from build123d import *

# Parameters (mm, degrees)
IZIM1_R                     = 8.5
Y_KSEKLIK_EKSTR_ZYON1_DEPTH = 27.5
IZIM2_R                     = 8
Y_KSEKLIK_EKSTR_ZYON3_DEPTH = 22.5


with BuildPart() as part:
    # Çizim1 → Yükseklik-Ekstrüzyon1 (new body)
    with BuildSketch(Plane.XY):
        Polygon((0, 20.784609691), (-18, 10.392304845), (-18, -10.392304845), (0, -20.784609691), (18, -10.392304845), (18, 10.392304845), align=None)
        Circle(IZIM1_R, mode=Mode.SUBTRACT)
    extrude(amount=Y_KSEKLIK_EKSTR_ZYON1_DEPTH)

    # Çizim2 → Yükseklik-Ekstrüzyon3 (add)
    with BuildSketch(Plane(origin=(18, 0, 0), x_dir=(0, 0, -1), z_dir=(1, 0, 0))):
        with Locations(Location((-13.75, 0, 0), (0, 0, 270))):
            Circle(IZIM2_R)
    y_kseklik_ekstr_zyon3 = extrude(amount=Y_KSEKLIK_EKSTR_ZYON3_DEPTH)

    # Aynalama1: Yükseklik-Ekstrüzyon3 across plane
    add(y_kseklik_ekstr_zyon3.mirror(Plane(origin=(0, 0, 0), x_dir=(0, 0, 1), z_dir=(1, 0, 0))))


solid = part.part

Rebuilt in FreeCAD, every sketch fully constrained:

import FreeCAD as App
import Part
import Sketcher
Q = App.Units.Quantity

doc = App.newDocument("Part")
body = doc.addObject("PartDesign::Body", "Body")

sketch1 = body.newObject("Sketcher::SketchObject", "Sketch")
sketch1.AttachmentSupport = (doc.getObject("XY_Plane"), [""])
sketch1.MapMode = "FlatFace"
sketch1.addGeometry([
    Part.LineSegment(App.Vector(0, 21, 0), App.Vector(-18, 10, 0)),
    Part.LineSegment(App.Vector(-18, 10, 0), App.Vector(-18, -10, 0)),
    Part.LineSegment(App.Vector(-18, -10, 0), App.Vector(0, -21, 0)),
    Part.LineSegment(App.Vector(0, -21, 0), App.Vector(18, -10, 0)),
    Part.LineSegment(App.Vector(18, -10, 0), App.Vector(18, 10, 0)),
    Part.LineSegment(App.Vector(18, 10, 0), App.Vector(0, 21, 0)),
    Part.Circle(App.Vector(0, 0, 0), App.Vector(0, 0, 1), 8),
], False)
sketch1.addConstraint([
    Sketcher.Constraint("Coincident", 0, 2, 1, 1),
    Sketcher.Constraint("Coincident", 1, 2, 2, 1),
    Sketcher.Constraint("Coincident", 2, 2, 3, 1),
    Sketcher.Constraint("Coincident", 3, 2, 4, 1),
    Sketcher.Constraint("Coincident", 4, 2, 5, 1),
    Sketcher.Constraint("Coincident", 5, 2, 0, 1),
    Sketcher.Constraint("Vertical", 1),
    Sketcher.Constraint("Vertical", 4),
    Sketcher.Constraint("Coincident", 6, 3, -1, 1),
    Sketcher.Constraint("Symmetric", 0, 2, 3, 2, -1, 1),
    Sketcher.Constraint("Symmetric", 2, 2, 5, 2, -1, 1),
    Sketcher.Constraint("PointOnObject", 2, 2, -2),
    Sketcher.Constraint("Parallel", 2, 5),
    Sketcher.Constraint("Horizontal", 1, 2, 3, 2),
    Sketcher.Constraint("Diameter", 6, 17.0),
    Sketcher.Constraint("Angle", 0, Q("-150 deg")),
    Sketcher.Constraint("DistanceX", 0, 2, -1, 1, 18.0),
    Sketcher.Constraint("DistanceY", 1, 2, 1, 1, 20.78461),
])
pad1 = body.newObject("PartDesign::Pad", "Pad")
pad1.Profile = sketch1
pad1.Length = 27.5

sketch2 = body.newObject("Sketcher::SketchObject", "Sketch001")
sketch2.AttachmentSupport = (doc.getObject("YZ_Plane"), [""])
sketch2.MapMode = "FlatFace"
sketch2.AttachmentOffset = App.Placement(App.Vector(0, 0, 18), App.Rotation())
sketch2.addGeometry(Part.Circle(App.Vector(0, 14, 0), App.Vector(0, 0, 1), 8), False)
sketch2.addConstraint([
    Sketcher.Constraint("PointOnObject", 0, 3, -2),
    Sketcher.Constraint("Diameter", 0, 16.0),
    Sketcher.Constraint("DistanceY", -1, 1, 0, 3, 13.75),
])
pad2 = body.newObject("PartDesign::Pad", "Pad001")
pad2.Profile = sketch2
pad2.Length = 22.5
doc.recompute()

mirrored = body.newObject("PartDesign::Mirrored", "Mirrored")
mirrored.Originals = [pad2]
mirrored.MirrorPlane = (doc.getObject("YZ_Plane"), [""])
body.Tip = mirrored

doc.recompute()
